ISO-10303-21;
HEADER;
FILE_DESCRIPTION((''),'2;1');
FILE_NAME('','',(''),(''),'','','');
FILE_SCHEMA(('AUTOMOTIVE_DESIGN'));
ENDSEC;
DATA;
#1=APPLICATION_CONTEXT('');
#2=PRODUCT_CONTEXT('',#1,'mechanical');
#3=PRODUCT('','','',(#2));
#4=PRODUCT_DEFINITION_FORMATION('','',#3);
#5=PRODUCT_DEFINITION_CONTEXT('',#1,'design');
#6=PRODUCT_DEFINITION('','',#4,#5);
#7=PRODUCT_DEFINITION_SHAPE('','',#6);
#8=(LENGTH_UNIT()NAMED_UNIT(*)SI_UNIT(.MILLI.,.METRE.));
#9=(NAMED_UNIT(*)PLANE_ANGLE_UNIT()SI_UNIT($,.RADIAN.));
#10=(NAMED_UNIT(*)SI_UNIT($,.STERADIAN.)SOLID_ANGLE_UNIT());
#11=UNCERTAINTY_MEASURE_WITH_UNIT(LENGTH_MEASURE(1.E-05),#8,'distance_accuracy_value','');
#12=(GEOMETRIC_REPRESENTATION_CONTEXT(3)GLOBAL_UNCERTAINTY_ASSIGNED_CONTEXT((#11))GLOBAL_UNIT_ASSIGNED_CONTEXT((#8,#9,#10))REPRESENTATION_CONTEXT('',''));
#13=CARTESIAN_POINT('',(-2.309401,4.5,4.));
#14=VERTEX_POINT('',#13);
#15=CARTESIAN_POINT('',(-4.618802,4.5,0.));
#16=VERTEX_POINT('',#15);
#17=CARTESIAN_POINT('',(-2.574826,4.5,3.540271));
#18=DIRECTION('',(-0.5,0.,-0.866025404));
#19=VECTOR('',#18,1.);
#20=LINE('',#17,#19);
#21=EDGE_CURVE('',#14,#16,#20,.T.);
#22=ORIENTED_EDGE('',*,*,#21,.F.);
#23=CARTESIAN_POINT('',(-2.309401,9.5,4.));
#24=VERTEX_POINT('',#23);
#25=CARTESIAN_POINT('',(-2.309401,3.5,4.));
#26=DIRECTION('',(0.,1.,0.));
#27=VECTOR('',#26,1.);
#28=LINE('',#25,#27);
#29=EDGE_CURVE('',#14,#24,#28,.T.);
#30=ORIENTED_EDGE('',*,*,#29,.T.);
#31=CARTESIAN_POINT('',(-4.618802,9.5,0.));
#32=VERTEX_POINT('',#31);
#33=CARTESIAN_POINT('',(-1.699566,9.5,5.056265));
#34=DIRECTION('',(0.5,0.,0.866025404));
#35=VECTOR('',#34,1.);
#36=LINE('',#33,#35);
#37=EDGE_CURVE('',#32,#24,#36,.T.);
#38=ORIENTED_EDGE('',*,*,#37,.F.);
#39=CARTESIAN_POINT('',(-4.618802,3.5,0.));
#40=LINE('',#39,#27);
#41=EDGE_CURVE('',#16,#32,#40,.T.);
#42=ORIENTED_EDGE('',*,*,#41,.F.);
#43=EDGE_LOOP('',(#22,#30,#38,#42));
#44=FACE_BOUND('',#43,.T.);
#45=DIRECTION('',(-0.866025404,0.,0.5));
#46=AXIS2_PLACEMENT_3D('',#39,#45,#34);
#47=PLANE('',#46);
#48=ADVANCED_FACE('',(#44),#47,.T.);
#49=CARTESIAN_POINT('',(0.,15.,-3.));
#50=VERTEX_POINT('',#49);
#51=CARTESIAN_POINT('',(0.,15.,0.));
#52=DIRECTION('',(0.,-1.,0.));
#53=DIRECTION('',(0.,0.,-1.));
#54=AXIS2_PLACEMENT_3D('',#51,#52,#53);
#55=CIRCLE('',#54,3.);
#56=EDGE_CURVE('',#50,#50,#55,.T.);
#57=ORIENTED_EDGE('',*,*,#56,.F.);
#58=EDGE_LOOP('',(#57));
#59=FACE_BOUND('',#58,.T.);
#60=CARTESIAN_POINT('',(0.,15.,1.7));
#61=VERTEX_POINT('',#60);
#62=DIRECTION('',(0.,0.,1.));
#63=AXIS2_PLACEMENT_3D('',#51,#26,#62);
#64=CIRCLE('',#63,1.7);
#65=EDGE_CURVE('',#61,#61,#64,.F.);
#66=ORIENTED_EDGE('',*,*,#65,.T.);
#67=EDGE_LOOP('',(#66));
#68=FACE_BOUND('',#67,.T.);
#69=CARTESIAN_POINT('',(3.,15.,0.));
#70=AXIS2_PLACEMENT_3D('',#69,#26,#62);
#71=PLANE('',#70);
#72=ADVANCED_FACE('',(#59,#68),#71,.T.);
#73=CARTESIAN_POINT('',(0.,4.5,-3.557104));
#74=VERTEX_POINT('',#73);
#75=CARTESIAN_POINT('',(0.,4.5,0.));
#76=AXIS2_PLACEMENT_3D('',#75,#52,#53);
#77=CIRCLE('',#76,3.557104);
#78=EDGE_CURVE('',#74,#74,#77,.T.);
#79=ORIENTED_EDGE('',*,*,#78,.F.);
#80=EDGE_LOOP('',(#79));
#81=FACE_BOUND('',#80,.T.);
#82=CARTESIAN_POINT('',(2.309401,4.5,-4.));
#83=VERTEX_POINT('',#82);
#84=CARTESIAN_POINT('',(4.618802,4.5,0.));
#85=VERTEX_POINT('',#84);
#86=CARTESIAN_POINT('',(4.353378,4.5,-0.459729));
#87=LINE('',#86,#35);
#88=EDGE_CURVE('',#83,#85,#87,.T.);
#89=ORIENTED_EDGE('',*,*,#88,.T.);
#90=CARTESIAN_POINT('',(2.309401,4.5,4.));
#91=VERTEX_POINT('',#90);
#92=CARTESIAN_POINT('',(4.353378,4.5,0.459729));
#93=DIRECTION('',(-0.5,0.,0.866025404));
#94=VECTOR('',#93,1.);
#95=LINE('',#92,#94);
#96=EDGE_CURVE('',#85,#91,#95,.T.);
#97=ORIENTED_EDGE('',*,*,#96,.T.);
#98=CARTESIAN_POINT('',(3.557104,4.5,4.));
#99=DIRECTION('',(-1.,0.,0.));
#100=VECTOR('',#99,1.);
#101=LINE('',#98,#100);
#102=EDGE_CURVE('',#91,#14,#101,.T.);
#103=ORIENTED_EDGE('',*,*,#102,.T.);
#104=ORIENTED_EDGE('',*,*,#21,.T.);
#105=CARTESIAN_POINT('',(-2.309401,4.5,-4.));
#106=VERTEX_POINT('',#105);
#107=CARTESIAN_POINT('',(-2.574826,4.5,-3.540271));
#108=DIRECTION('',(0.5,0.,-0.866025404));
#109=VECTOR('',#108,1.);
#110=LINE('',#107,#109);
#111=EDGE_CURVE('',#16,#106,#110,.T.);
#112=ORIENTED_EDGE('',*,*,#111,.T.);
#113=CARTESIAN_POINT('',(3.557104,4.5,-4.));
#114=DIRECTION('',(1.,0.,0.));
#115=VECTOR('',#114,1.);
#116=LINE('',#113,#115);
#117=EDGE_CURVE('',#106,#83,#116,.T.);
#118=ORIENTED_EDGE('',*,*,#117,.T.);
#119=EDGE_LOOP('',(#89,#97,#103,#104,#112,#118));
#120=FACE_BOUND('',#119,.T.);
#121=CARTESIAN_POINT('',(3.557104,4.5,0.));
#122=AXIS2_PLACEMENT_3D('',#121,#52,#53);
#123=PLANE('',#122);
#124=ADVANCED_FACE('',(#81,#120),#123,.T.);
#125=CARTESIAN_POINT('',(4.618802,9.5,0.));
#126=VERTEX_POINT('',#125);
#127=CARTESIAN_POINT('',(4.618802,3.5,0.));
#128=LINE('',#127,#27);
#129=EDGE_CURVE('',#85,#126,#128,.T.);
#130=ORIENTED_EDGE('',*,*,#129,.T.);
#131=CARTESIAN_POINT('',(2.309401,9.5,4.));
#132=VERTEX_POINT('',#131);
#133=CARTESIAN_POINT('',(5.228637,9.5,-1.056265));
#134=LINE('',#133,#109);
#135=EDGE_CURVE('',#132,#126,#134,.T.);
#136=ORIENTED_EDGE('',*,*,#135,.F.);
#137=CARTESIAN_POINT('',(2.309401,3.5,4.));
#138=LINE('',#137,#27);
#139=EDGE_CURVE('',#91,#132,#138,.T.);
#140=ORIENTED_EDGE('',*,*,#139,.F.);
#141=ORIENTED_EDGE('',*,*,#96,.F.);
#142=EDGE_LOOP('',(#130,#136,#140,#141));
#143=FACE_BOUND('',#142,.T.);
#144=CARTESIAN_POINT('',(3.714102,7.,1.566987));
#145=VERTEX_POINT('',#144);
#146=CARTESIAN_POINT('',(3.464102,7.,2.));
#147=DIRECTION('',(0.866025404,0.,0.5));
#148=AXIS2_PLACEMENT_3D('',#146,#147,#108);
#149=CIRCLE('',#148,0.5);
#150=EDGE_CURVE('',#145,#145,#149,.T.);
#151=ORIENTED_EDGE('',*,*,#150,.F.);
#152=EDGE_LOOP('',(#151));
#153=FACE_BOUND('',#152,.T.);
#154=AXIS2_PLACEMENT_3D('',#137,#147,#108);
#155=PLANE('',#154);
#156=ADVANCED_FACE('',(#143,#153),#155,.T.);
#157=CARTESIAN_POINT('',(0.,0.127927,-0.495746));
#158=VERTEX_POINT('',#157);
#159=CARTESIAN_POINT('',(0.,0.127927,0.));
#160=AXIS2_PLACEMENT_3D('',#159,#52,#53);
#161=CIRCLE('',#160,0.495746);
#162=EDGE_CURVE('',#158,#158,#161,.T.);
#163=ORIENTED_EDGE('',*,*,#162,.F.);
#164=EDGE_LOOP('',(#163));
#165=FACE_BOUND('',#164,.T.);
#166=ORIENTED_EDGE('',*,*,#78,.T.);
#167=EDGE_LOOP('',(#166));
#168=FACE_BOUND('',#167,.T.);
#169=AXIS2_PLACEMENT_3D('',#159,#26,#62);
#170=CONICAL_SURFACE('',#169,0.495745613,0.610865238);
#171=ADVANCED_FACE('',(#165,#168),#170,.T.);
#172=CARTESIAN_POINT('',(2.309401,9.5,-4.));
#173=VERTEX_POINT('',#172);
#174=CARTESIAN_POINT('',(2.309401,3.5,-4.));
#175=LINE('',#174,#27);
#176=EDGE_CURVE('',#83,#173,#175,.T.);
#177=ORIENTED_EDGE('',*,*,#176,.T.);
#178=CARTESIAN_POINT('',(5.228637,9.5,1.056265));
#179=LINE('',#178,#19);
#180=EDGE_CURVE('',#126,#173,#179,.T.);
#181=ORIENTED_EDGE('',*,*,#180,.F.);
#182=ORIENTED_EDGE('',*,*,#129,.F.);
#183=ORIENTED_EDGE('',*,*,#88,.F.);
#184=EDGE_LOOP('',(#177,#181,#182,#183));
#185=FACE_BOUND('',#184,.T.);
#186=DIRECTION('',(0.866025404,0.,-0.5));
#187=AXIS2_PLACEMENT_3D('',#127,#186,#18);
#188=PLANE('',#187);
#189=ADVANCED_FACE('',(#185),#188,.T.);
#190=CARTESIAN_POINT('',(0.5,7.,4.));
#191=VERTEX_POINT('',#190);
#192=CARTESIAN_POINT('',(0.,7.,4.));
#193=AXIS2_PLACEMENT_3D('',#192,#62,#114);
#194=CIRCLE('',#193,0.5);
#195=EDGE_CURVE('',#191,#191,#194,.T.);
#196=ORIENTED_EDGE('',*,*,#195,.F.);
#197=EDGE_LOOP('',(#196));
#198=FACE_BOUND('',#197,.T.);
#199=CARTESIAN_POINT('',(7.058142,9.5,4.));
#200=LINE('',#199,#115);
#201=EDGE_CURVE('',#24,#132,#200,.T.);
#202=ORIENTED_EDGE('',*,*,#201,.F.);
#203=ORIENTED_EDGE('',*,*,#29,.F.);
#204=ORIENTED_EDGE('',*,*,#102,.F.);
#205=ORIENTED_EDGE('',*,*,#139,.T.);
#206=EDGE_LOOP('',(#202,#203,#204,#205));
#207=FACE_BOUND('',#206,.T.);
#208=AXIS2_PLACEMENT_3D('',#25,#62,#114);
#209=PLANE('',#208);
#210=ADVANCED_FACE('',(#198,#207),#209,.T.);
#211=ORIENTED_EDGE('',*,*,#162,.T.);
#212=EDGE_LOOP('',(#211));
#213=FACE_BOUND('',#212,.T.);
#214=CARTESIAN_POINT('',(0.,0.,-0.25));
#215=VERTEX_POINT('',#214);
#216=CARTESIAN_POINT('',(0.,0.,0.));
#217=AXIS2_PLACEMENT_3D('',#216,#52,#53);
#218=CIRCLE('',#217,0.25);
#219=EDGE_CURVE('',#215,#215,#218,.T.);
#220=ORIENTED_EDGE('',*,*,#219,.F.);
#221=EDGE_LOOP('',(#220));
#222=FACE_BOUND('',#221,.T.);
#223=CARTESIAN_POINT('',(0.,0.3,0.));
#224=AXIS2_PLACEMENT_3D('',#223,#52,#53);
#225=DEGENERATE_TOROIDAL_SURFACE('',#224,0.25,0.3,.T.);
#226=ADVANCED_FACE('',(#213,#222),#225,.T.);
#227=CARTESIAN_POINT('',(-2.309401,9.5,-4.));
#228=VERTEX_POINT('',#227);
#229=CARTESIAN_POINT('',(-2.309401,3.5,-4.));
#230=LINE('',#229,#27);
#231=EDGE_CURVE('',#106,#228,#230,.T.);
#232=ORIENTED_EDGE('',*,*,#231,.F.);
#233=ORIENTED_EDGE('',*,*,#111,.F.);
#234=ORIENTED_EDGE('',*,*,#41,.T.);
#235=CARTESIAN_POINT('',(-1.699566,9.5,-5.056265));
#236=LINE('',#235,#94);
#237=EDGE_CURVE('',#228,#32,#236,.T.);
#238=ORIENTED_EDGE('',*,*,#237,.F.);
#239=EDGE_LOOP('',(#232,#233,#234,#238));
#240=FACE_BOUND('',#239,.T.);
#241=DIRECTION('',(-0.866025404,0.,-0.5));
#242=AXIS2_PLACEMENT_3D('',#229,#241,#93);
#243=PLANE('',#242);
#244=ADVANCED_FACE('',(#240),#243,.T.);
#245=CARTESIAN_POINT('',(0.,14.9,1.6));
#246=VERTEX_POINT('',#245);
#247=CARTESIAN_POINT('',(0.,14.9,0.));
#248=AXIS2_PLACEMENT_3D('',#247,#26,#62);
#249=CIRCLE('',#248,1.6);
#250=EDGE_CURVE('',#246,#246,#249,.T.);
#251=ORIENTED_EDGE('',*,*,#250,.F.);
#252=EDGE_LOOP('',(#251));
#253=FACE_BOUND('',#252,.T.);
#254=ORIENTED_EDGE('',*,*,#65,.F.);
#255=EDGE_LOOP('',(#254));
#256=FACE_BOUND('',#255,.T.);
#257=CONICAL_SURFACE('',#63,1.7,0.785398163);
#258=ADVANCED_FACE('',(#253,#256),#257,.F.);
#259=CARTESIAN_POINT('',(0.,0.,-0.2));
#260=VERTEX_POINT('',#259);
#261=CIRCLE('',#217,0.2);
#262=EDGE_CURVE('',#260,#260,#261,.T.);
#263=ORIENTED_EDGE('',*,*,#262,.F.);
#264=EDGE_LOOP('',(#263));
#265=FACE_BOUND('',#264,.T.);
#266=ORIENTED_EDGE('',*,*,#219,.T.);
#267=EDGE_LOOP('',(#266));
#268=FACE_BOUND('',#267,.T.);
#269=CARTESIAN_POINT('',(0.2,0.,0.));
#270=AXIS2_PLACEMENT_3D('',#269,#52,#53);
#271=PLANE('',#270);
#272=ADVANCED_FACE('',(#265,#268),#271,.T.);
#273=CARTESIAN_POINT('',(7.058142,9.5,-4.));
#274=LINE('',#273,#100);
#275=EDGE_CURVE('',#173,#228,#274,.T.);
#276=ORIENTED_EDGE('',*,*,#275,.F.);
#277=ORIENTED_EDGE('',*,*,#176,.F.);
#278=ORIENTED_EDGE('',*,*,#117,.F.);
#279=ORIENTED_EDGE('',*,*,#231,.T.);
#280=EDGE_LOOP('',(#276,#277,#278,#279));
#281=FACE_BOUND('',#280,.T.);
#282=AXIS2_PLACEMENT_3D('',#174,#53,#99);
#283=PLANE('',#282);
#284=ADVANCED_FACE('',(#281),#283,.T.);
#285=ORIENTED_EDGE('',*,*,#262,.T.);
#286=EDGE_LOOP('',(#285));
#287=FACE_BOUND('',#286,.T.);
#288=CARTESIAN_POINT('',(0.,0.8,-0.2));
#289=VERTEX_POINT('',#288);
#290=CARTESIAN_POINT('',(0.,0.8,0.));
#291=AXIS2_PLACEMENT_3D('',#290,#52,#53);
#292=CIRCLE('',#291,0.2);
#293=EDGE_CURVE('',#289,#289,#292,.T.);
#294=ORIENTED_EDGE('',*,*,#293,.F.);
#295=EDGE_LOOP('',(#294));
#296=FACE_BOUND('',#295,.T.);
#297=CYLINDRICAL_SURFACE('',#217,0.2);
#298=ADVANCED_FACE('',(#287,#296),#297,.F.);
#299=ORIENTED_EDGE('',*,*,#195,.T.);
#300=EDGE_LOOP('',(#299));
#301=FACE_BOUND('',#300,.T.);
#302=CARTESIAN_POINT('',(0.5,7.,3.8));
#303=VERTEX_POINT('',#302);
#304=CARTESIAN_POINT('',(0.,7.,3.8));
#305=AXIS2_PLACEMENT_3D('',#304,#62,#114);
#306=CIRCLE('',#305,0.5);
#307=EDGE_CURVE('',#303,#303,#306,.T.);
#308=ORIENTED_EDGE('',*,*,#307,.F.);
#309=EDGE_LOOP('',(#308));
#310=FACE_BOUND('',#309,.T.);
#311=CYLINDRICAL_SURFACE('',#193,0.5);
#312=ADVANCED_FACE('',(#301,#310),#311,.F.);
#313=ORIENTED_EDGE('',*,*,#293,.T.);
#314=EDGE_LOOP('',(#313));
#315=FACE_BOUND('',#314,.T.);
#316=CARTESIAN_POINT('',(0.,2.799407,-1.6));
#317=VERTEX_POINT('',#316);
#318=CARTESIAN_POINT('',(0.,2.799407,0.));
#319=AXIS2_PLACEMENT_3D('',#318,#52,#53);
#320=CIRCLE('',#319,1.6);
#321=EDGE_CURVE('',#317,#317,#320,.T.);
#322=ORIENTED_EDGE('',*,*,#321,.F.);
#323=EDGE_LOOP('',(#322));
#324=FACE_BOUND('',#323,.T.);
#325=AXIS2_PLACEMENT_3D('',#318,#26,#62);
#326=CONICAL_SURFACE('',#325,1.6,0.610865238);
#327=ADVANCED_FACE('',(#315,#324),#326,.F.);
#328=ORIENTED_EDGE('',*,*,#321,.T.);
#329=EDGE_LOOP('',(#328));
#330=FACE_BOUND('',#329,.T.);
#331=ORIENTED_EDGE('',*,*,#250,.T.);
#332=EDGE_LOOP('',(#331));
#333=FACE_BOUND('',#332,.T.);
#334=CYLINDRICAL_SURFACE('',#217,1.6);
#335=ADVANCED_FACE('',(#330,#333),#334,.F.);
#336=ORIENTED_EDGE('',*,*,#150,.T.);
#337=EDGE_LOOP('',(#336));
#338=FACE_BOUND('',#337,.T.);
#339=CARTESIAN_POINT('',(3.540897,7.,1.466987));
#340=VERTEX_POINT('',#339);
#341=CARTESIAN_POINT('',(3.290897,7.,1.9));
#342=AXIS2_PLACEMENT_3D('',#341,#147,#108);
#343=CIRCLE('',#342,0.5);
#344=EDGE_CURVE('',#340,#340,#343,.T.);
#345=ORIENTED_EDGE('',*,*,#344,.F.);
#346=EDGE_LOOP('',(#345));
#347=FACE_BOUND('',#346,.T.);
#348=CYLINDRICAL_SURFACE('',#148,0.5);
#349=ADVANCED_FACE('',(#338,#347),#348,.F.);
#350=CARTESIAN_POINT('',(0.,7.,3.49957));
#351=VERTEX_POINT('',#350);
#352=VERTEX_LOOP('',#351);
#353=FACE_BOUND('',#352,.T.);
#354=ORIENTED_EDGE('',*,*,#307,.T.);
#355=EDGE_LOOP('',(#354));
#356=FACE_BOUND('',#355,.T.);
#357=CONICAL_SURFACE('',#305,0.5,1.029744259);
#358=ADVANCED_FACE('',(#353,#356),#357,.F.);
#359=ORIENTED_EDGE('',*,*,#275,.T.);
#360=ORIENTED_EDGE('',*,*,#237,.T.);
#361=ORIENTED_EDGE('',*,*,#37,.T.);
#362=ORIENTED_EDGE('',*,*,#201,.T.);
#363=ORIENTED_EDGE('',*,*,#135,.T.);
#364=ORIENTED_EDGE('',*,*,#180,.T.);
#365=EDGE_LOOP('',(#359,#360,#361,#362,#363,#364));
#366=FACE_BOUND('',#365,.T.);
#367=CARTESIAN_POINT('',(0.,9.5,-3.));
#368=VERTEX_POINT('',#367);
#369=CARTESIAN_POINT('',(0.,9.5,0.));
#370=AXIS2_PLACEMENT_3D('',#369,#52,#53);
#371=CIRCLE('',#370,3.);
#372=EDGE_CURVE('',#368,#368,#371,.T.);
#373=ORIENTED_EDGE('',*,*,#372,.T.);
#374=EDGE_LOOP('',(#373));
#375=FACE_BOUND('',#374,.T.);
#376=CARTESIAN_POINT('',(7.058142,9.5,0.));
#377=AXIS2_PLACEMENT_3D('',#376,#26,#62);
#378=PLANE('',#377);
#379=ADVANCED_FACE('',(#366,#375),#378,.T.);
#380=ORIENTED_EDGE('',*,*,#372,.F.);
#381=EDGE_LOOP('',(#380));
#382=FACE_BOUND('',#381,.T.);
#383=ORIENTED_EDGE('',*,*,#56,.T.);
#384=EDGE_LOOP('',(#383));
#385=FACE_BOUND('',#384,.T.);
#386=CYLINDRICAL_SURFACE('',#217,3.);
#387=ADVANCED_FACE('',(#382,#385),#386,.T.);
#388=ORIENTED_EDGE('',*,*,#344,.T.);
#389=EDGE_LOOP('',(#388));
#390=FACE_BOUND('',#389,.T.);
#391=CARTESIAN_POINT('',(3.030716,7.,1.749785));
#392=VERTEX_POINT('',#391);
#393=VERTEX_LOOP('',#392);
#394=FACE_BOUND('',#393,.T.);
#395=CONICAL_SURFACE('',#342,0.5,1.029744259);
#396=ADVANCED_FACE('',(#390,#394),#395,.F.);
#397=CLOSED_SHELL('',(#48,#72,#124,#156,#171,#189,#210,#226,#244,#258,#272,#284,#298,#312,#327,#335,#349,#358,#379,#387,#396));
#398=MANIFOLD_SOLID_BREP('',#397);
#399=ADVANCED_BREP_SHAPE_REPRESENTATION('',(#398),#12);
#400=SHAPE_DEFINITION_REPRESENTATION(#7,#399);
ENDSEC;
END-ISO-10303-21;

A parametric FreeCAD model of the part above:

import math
import FreeCAD as App
import Part
import Sketcher
Q = App.Units.Quantity


def edges_at(feature, points):
    """Names of the edges that pass closest to the given points."""
    edges = feature.Shape.Edges
    near = lambda p: min(range(len(edges)), key=lambda i: edges[i].distToShape(Part.Vertex(*p))[0])
    return sorted({f"Edge{near(p) + 1}" for p in points})


def add_polygon(sketch, points):
    """Adds a closed chain of lines whose ends are joined by coincident constraints."""
    first, n = sketch.GeometryCount, len(points)
    for a, b in zip(points, points[1:] + points[:1]):
        sketch.addGeometry(Part.LineSegment(App.Vector(*a, 0), App.Vector(*b, 0)), False)
    for i in range(n):
        sketch.addConstraint(Sketcher.Constraint("Coincident", first + i, 2, first + (i + 1) % n, 1))

doc = App.newDocument("Part")
params = doc.addObject("Spreadsheet::Sheet", "Params")
for row, (alias, value) in enumerate([
    ("sketch1_radius", "0.3 mm"),
    ("sketch1_width", "1.4 mm"),
    ("sketch1_height", "5.5 mm"),
    ("sketch1_height2", "0.8 mm"),
    ("sketch1_width2", "0.05 mm"),
    ("revolution_angle", "360 deg"),
    ("pocket1_length", "7 mm"),
    ("chamfer_size", "0.1 mm"),
    ("sketch3_diameter", "1 mm"),
    ("hole_diameter", "1 mm"),
    ("hole_depth", "0.2 mm"),
    ("sketch4_diameter", "1 mm"),
    ("hole2_diameter", "1 mm"),
    ("hole2_depth", "0.2 mm"),
], start=1):
    params.set(f"A{row}", alias)
    params.set(f"B{row}", "=" + value)
    params.setAlias(f"B{row}", alias)

body = doc.addObject("PartDesign::Body", "Body")

# Sketch on XY plane
sketch1 = doc.addObject("Sketcher::SketchObject", "Sketch")
body.addObject(sketch1)
sketch1.AttachmentSupport = (doc.XY_Plane, [""])
sketch1.MapMode = "FlatFace"
sketch1.addGeometry([
    Part.LineSegment(App.Vector(0.2, 0, 0), App.Vector(0.25, 0, 0)),  # 0
    Part.ArcOfCircle(Part.Circle(App.Vector(0.25, 0.3, 0), App.Vector(0, 0, 1), 0.3), math.radians(-90), math.radians(-35)),  # 1
    Part.LineSegment(App.Vector(0.495746, 0.127927, 0), App.Vector(3.557104, 4.5, 0)),  # 2
    Part.LineSegment(App.Vector(3.557104, 4.5, 0), App.Vector(5.706019, 4.5, 0)),  # 3
    Part.LineSegment(App.Vector(5.706019, 4.5, 0), App.Vector(5.706019, 7.568969, 0)),  # 4
    Part.LineSegment(App.Vector(5.706019, 7.568969, 0), App.Vector(7.058142, 9.5, 0)),  # 5
    Part.LineSegment(App.Vector(7.058142, 9.5, 0), App.Vector(3, 9.5, 0)),  # 6
    Part.LineSegment(App.Vector(3, 9.5, 0), App.Vector(3, 15, 0)),  # 7
    Part.LineSegment(App.Vector(3, 15, 0), App.Vector(1.6, 15, 0)),  # 8
    Part.LineSegment(App.Vector(1.6, 15, 0), App.Vector(1.6, 2.799407, 0)),  # 9
    Part.LineSegment(App.Vector(1.6, 2.799407, 0), App.Vector(0.2, 0.8, 0)),  # 10
    Part.LineSegment(App.Vector(0.2, 0.8, 0), App.Vector(0.2, 0, 0)),  # 11
], False)
sketch1.addConstraint([
    Sketcher.Constraint("Tangent", 0, 2, 1, 1),
    Sketcher.Constraint("Tangent", 1, 2, 2, 1),
    Sketcher.Constraint("Coincident", 2, 2, 3, 1),
    Sketcher.Constraint("Coincident", 3, 2, 4, 1),
    Sketcher.Constraint("Coincident", 4, 2, 5, 1),
    Sketcher.Constraint("Coincident", 5, 2, 6, 1),
    Sketcher.Constraint("Coincident", 6, 2, 7, 1),
    Sketcher.Constraint("Coincident", 7, 2, 8, 1),
    Sketcher.Constraint("Coincident", 8, 2, 9, 1),
    Sketcher.Constraint("Coincident", 9, 2, 10, 1),
    Sketcher.Constraint("Coincident", 10, 2, 11, 1),
    Sketcher.Constraint("Coincident", 11, 2, 0, 1),
    Sketcher.Constraint("Horizontal", 0),
    Sketcher.Constraint("Horizontal", 3),
    Sketcher.Constraint("Vertical", 4),
    Sketcher.Constraint("Horizontal", 6),
    Sketcher.Constraint("Vertical", 7),
    Sketcher.Constraint("Horizontal", 8),
    Sketcher.Constraint("Vertical", 9),
    Sketcher.Constraint("Vertical", 11),
    Sketcher.Constraint("PointOnObject", 0, 2, -1),
    Sketcher.Constraint("Parallel", 2, 5),
    Sketcher.Constraint("Parallel", 5, 10),
    Sketcher.Constraint("Radius", 1, 0.3),
    Sketcher.Constraint("Angle", 2, Q("55 deg")),
    Sketcher.Constraint("DistanceX", 8, 2, 8, 1, 1.4),
    Sketcher.Constraint("DistanceY", 7, 1, 7, 2, 5.5),
    Sketcher.Constraint("DistanceY", 11, 2, 11, 1, 0.8),
    Sketcher.Constraint("DistanceX", -1, 1, 6, 2, 3.0),
    Sketcher.Constraint("DistanceY", -1, 1, 7, 2, 15.0),
    Sketcher.Constraint("DistanceY", 3, 2, 5, 2, 5.0),
    Sketcher.Constraint("DistanceX", 0, 1, 0, 2, 0.05),
    Sketcher.Constraint("DistanceX", -1, 1, 10, 2, 0.2),
    Sketcher.Constraint("DistanceX", 6, 2, 6, 1, 4.058142),
    Sketcher.Constraint("DistanceY", 4, 1, 4, 2, 3.068969),
])
sketch1.setExpression("Constraints[23]", "Params.sketch1_radius")
sketch1.setExpression("Constraints[25]", "Params.sketch1_width")
sketch1.setExpression("Constraints[26]", "Params.sketch1_height")
sketch1.setExpression("Constraints[27]", "Params.sketch1_height2")
sketch1.setExpression("Constraints[31]", "Params.sketch1_width2")
revolution = doc.addObject("PartDesign::Revolution", "Revolution")
body.addObject(revolution)
revolution.Profile = sketch1
revolution.ReferenceAxis = (sketch1, ["V_Axis"])
revolution.setExpression("Angle", "Params.revolution_angle")

# Sketch on XZ plane
sketch2 = doc.addObject("Sketcher::SketchObject", "Sketch001")
body.addObject(sketch2)
sketch2.AttachmentSupport = (doc.XZ_Plane, [""])
sketch2.MapMode = "FlatFace"
sketch2.AttachmentOffset = App.Placement(App.Vector(0, 0, -10.5), App.Rotation())
sketch2.addGeometry(Part.Circle(App.Vector(0, 0, 0), App.Vector(0, 0, 1), 7.058142), False)  # 0
add_polygon(sketch2, [(-2.309401, -4), (2.309401, -4), (4.618802, 0), (2.309401, 4), (-2.309401, 4), (-4.618802, 0)])  # lines 1-6
sketch2.addConstraint([
    Sketcher.Constraint("Horizontal", 1),
    Sketcher.Constraint("Horizontal", 4),
    Sketcher.Constraint("Coincident", 0, 3, -1, 1),
    Sketcher.Constraint("Symmetric", 1, 2, 4, 2, -1, 1),
    Sketcher.Constraint("Symmetric", 2, 2, 5, 2, -1, 1),
    Sketcher.Constraint("PointOnObject", 2, 2, -1),
    Sketcher.Constraint("Parallel", 3, 6),
    Sketcher.Constraint("Vertical", 1, 2, 3, 2),
    Sketcher.Constraint("Angle", 2, Q("60 deg")),
    Sketcher.Constraint("DistanceY", 1, 2, -1, 1, 4.0),
    Sketcher.Constraint("Diameter", 0, 14.116283),
    Sketcher.Constraint("DistanceX", -1, 1, 1, 2, 2.309401),
])
pocket1 = doc.addObject("PartDesign::Pocket", "Pocket")
body.addObject(pocket1)
pocket1.Profile = sketch2
pocket1.setExpression("Length", "Params.pocket1_length")
pocket1.Reversed = True
doc.recompute()

chamfer = doc.addObject("PartDesign::Chamfer", "Chamfer")
body.addObject(chamfer)
chamfer.Base = (pocket1, edges_at(pocket1, [(-1.6, 15, 0)]))
chamfer.setExpression("Size", "Params.chamfer_size")

# Sketch on an angled plane
sketch3 = doc.addObject("Sketcher::SketchObject", "Sketch002")
body.addObject(sketch3)
sketch3.Placement = App.Placement(App.Vector(3.464102, 0, 2), App.Rotation(App.Vector(-0.5, 0, 0.866025404), App.Vector(0, -1, 0), App.Vector(0.866025404, 0, 0.5), "ZXY"))
sketch3.addGeometry(Part.Circle(App.Vector(0, -7, 0), App.Vector(0, 0, 1), 0.5), False)
sketch3.addConstraint([
    Sketcher.Constraint("PointOnObject", 0, 3, -2),
    Sketcher.Constraint("Diameter", 0, 1.0),
    Sketcher.Constraint("DistanceY", 0, 3, -1, 1, 7.0),
])
sketch3.setExpression("Constraints[1]", "Params.sketch3_diameter")
doc.recompute()
hole = doc.addObject("PartDesign::Hole", "Hole")
body.addObject(hole)
hole.Profile = sketch3
hole.ThreadType = "None"
hole.setExpression("Diameter", "Params.hole_diameter")
hole.DepthType = "Dimension"
hole.setExpression("Depth", "Params.hole_depth")
hole.DrillPoint = "Angled"
hole.DrillPointAngle = 118

# Sketch on XY plane
sketch4 = doc.addObject("Sketcher::SketchObject", "Sketch003")
body.addObject(sketch4)
sketch4.AttachmentSupport = (doc.XY_Plane, [""])
sketch4.MapMode = "FlatFace"
sketch4.AttachmentOffset = App.Placement(App.Vector(0, 0, 4), App.Rotation())
sketch4.addGeometry(Part.Circle(App.Vector(0, 7, 0), App.Vector(0, 0, 1), 0.5), False)
sketch4.addConstraint([
    Sketcher.Constraint("PointOnObject", 0, 3, -2),
    Sketcher.Constraint("Diameter", 0, 1.0),
    Sketcher.Constraint("DistanceY", -1, 1, 0, 3, 7.0),
])
sketch4.setExpression("Constraints[1]", "Params.sketch4_diameter")
doc.recompute()
hole2 = doc.addObject("PartDesign::Hole", "Hole001")
body.addObject(hole2)
hole2.Profile = sketch4
hole2.ThreadType = "None"
hole2.setExpression("Diameter", "Params.hole2_diameter")
hole2.DepthType = "Dimension"
hole2.setExpression("Depth", "Params.hole2_depth")
hole2.DrillPoint = "Angled"
hole2.DrillPointAngle = 118

doc.recompute()
